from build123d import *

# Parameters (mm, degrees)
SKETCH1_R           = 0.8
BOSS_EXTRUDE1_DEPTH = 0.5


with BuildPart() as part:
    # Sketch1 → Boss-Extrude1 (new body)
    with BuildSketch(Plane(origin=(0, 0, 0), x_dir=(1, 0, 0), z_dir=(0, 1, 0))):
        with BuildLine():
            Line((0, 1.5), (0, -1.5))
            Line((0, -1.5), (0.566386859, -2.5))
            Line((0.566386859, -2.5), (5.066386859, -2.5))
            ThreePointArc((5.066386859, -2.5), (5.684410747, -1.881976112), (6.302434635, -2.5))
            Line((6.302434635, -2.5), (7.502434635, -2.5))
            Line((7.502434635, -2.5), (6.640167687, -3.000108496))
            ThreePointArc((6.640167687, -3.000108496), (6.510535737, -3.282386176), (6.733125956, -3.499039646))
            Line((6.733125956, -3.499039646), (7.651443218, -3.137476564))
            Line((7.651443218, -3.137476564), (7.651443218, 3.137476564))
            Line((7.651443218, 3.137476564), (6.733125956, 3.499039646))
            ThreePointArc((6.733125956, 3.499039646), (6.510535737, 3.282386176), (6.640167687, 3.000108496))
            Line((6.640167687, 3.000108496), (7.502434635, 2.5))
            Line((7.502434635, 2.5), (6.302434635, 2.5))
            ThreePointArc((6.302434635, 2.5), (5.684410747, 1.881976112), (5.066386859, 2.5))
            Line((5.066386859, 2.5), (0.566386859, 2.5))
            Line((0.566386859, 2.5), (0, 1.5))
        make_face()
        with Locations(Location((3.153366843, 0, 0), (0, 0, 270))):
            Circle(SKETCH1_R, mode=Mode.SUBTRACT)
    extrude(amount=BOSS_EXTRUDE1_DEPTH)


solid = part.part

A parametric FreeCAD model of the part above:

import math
import FreeCAD as App
import Part
import Sketcher
from FreeCAD import Vector

doc = App.newDocument("Part")
body = doc.addObject("PartDesign::Body", "Body")

# Sketch on XZ plane
sketch1 = body.newObject("Sketcher::SketchObject", "Sketch")
sketch1.AttachmentSupport = (doc.getObject("XZ_Plane"), [""])
sketch1.MapMode = "FlatFace"
sketch1.addGeometry([
    Part.LineSegment(Vector(0, -1.5, 0), Vector(0, 1.5, 0)),  # 0
    Part.LineSegment(Vector(0, 1.5, 0), Vector(0.566387, 2.5, 0)),  # 1
    Part.LineSegment(Vector(0.566387, 2.5, 0), Vector(5.066387, 2.5, 0)),  # 2
    Part.ArcOfCircle(Part.Circle(Vector(5.684411, 2.5, 0), Vector(0, 0, 1), 0.618024), math.radians(180), math.radians(360)),  # 3
    Part.LineSegment(Vector(6.302435, 2.5, 0), Vector(7.502435, 2.5, 0)),  # 4
    Part.LineSegment(Vector(7.502435, 2.5, 0), Vector(6.640168, 3.000108, 0)),  # 5
    Part.ArcOfCircle(Part.Circle(Vector(6.775278, 3.233061, 0), Vector(0, 0, 1), 0.269298), math.radians(99.005334), math.radians(239.886582)),  # 6
    Part.LineSegment(Vector(6.733126, 3.49904, 0), Vector(7.651443, 3.137477, 0)),  # 7
    Part.LineSegment(Vector(7.651443, 3.137477, 0), Vector(7.651443, -3.137477, 0)),  # 8
    Part.LineSegment(Vector(7.651443, -3.137477, 0), Vector(6.733126, -3.49904, 0)),  # 9
    Part.ArcOfCircle(Part.Circle(Vector(6.775278, -3.233061, 0), Vector(0, 0, 1), 0.269298), math.radians(120.113418), math.radians(260.994666)),  # 10
    Part.LineSegment(Vector(6.640168, -3.000108, 0), Vector(7.502435, -2.5, 0)),  # 11
    Part.LineSegment(Vector(7.502435, -2.5, 0), Vector(6.302435, -2.5, 0)),  # 12
    Part.ArcOfCircle(Part.Circle(Vector(5.684411, -2.5, 0), Vector(0, 0, 1), 0.618024), math.radians(0), math.radians(180)),  # 13
    Part.LineSegment(Vector(5.066387, -2.5, 0), Vector(0.566387, -2.5, 0)),  # 14
    Part.LineSegment(Vector(0.566387, -2.5, 0), Vector(0, -1.5, 0)),  # 15
    Part.Circle(Vector(3.153367, 0, 0), Vector(0, 0, 1), 0.8),  # 16
], False)
sketch1.addConstraint([
    Sketcher.Constraint("Coincident", 0, 2, 1, 1),
    Sketcher.Constraint("Coincident", 1, 2, 2, 1),
    Sketcher.Constraint("Coincident", 2, 2, 3, 1),
    Sketcher.Constraint("Coincident", 3, 2, 4, 1),
    Sketcher.Constraint("Coincident", 4, 2, 5, 1),
    Sketcher.Constraint("Tangent", 5, 2, 6, 2),
    Sketcher.Constraint("Coincident", 6, 1, 7, 1),
    Sketcher.Constraint("Coincident", 7, 2, 8, 1),
    Sketcher.Constraint("Coincident", 8, 2, 9, 1),
    Sketcher.Constraint("Coincident", 9, 2, 10, 2),
    Sketcher.Constraint("Tangent", 10, 1, 11, 1),
    Sketcher.Constraint("Coincident", 11, 2, 12, 1),
    Sketcher.Constraint("Coincident", 12, 2, 13, 1),
    Sketcher.Constraint("Coincident", 13, 2, 14, 1),
    Sketcher.Constraint("Coincident", 14, 2, 15, 1),
    Sketcher.Constraint("Coincident", 15, 2, 0, 1),
    Sketcher.Constraint("Vertical", 0),
    Sketcher.Constraint("Horizontal", 2),
    Sketcher.Constraint("Horizontal", 4),
    Sketcher.Constraint("Vertical", 8),
    Sketcher.Constraint("Horizontal", 12),
    Sketcher.Constraint("Horizontal", 14),
    Sketcher.Constraint("Equal", 6, 10),
    Sketcher.Constraint("Equal", 3, 13),
    Sketcher.Constraint("Symmetric", 0, 2, 15, 2, -1, 1),
    Sketcher.Constraint("Symmetric", 6, 3, 10, 3, -1),
    Sketcher.Constraint("Symmetric", 3, 3, 13, 3, -1),
    Sketcher.Constraint("Symmetric", 4, 2, 11, 2, -1),
    Sketcher.Constraint("Symmetric", 1, 2, 14, 2, -1),
    Sketcher.Constraint("PointOnObject", 16, 3, -1),
    Sketcher.Constraint("Horizontal", 3, 3, 1, 2),
    Sketcher.Constraint("Horizontal", 2, 2, 3, 2),
    Sketcher.Constraint("Vertical", 6, 1, 9, 2),
    Sketcher.Constraint("Equal", 7, 9),
    Sketcher.Constraint("Diameter", 16, 1.6),
    Sketcher.Constraint("DistanceY", 0, 1, 0, 2, 3.0),
    Sketcher.Constraint("DistanceX", 2, 1, 2, 2, 4.5),
    Sketcher.Constraint("DistanceX", 4, 1, 4, 2, 1.2),
    Sketcher.Constraint("DistanceY", 13, 3, 3, 3, 5.0),
    Sketcher.Constraint("Radius", 6, 0.269298),
    Sketcher.Constraint("Radius", 3, 0.618024),
    Sketcher.Constraint("Distance", 5, 0.996801),
    Sketcher.Constraint("DistanceX", 16, 3, 10, 1, 3.486801),
    Sketcher.Constraint("Distance", 1, 1.149258),
    Sketcher.Constraint("Distance", 7, 0.986932),
    Sketcher.Constraint("DistanceY", 8, 2, 8, 1, 6.274953),
    Sketcher.Constraint("DistanceX", -1, 1, 6, 3, 6.775278),
    Sketcher.Constraint("DistanceY", -1, 1, 6, 1, 3.49904),
])
pad1 = body.newObject("PartDesign::Pad", "Pad")
pad1.Profile = sketch1
pad1.Length = 0.5
pad1.Reversed = True

doc.recompute()
